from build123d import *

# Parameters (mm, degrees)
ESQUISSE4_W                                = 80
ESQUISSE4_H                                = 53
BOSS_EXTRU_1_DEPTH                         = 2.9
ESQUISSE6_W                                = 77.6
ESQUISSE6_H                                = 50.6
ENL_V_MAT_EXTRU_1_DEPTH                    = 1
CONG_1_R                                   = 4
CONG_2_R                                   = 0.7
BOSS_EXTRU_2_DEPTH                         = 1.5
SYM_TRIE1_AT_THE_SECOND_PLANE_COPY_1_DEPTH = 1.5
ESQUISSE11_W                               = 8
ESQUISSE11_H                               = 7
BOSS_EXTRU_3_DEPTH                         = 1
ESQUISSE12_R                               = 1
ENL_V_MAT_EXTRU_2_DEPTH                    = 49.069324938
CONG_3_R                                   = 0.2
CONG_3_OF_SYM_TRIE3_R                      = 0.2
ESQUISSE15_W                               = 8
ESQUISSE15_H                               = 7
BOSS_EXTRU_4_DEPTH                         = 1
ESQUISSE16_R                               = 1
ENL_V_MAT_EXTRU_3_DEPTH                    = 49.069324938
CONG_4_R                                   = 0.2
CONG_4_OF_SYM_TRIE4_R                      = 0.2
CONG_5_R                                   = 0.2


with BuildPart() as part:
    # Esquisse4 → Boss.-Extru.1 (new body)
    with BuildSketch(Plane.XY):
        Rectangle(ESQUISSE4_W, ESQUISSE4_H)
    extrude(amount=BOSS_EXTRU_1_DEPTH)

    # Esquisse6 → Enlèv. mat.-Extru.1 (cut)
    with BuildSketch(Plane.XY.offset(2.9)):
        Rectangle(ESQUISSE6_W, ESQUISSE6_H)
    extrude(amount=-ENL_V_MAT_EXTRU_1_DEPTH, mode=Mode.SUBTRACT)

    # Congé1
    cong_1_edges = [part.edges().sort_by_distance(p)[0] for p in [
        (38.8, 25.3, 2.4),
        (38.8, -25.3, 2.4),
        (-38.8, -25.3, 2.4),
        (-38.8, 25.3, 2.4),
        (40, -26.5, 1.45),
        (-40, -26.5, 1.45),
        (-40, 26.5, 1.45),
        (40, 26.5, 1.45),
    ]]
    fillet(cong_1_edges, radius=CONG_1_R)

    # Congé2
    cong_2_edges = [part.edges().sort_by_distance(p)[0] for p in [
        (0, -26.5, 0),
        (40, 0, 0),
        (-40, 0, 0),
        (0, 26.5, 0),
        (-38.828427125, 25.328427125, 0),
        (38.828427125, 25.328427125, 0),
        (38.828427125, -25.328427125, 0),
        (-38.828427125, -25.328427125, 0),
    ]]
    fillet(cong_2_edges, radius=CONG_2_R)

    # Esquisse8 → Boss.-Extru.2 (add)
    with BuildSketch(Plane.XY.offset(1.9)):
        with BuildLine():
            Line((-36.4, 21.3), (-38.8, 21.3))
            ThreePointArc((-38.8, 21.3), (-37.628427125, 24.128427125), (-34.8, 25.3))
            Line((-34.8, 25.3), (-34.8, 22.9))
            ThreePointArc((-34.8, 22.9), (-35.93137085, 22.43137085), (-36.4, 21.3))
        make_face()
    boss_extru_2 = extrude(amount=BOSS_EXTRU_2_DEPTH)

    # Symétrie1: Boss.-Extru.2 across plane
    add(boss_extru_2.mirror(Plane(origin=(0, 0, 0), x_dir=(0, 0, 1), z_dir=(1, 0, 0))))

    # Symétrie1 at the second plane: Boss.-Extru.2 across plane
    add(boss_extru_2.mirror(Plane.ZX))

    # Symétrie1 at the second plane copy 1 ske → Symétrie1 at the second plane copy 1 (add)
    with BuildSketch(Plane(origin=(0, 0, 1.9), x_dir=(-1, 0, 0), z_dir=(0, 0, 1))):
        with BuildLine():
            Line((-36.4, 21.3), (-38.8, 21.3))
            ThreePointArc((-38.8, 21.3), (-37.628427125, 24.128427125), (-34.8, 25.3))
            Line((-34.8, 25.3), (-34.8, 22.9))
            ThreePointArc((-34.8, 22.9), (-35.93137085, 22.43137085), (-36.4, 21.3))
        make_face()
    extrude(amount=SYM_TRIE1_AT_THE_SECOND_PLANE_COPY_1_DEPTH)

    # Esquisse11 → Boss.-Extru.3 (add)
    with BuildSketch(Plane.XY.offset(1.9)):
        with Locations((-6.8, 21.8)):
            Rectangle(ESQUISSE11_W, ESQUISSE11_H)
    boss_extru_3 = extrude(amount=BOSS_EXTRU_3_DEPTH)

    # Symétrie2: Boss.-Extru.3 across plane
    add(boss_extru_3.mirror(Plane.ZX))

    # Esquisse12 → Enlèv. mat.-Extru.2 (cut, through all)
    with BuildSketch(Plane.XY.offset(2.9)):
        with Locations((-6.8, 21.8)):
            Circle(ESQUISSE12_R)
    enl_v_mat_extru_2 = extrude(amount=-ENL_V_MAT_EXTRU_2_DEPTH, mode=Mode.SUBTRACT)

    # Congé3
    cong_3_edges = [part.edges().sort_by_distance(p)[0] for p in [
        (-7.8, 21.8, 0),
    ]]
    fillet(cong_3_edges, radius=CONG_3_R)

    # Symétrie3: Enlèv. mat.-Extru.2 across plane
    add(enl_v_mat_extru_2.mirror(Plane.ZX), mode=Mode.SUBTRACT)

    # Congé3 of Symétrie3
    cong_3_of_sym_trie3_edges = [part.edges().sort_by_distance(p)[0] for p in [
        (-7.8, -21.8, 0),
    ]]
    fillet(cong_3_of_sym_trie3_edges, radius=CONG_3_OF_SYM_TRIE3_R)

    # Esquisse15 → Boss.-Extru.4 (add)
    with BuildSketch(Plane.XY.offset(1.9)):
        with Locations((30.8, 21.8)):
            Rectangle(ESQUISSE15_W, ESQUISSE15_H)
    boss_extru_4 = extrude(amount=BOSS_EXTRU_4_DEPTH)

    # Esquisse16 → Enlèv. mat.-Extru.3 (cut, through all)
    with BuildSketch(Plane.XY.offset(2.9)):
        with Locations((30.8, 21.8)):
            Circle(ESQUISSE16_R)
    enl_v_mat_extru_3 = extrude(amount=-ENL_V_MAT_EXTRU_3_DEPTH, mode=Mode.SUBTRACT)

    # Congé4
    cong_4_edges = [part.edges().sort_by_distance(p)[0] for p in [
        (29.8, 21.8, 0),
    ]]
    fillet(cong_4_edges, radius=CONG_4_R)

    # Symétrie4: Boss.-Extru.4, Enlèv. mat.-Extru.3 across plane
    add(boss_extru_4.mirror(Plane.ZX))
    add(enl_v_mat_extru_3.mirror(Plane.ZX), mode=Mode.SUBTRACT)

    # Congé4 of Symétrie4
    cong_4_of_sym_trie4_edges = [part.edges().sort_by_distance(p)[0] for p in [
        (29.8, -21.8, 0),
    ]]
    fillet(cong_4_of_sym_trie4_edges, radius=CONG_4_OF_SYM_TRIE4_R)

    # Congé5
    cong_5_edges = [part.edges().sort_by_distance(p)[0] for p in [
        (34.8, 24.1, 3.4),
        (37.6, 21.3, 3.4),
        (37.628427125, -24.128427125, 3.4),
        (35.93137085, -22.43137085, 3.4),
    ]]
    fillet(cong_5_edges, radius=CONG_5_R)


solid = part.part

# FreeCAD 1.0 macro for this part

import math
import FreeCAD as App
import Part
import Sketcher
from FreeCAD import Vector
Q = App.Units.Quantity


def edges_at(feature, points):
    """Names of the edges that pass closest to the given points."""
    edges = feature.Shape.Edges
    near = lambda p: min(range(len(edges)), key=lambda i: edges[i].distToShape(Part.Vertex(*p))[0])
    return sorted({f"Edge{near(p) + 1}" for p in points})

doc = App.newDocument("Part")
body = doc.addObject("PartDesign::Body", "Body")

sketch1 = body.newObject("Sketcher::SketchObject", "Sketch")
sketch1.AttachmentSupport = (doc.getObject("XY_Plane"), [""])
sketch1.MapMode = "FlatFace"
sketch1.addGeometry(Part.LineSegment(Vector(-40, 26, 0), Vector(-40, -26, 0)), False)
sketch1.addGeometry(Part.LineSegment(Vector(-40, -26, 0), Vector(40, -26, 0)), False)
sketch1.addGeometry(Part.LineSegment(Vector(40, -26, 0), Vector(40, 26, 0)), False)
sketch1.addGeometry(Part.LineSegment(Vector(40, 26, 0), Vector(-40, 26, 0)), False)
sketch1.addConstraint(Sketcher.Constraint("Coincident", 0, 2, 1, 1))
sketch1.addConstraint(Sketcher.Constraint("Coincident", 1, 2, 2, 1))
sketch1.addConstraint(Sketcher.Constraint("Coincident", 2, 2, 3, 1))
sketch1.addConstraint(Sketcher.Constraint("Coincident", 3, 2, 0, 1))
sketch1.addConstraint(Sketcher.Constraint("Vertical", 0))
sketch1.addConstraint(Sketcher.Constraint("Horizontal", 1))
sketch1.addConstraint(Sketcher.Constraint("Vertical", 2))
sketch1.addConstraint(Sketcher.Constraint("Horizontal", 3))
sketch1.addConstraint(Sketcher.Constraint("Symmetric", 0, 2, 2, 2, -1, 1))
sketch1.addConstraint(Sketcher.Constraint("DistanceX", 1, 1, 1, 2, Q("80 mm")))
sketch1.addConstraint(Sketcher.Constraint("DistanceY", 0, 2, 0, 1, Q("53 mm")))
pad1 = body.newObject("PartDesign::Pad", "Pad")
pad1.Profile = sketch1
pad1.Length = 2.9

sketch2 = body.newObject("Sketcher::SketchObject", "Sketch001")
sketch2.AttachmentSupport = (doc.getObject("XY_Plane"), [""])
sketch2.MapMode = "FlatFace"
sketch2.AttachmentOffset = App.Placement(Vector(0, 0, 2.9), App.Rotation())
sketch2.addGeometry(Part.LineSegment(Vector(-39, 25, 0), Vector(-39, -25, 0)), False)
sketch2.addGeometry(Part.LineSegment(Vector(-39, -25, 0), Vector(39, -25, 0)), False)
sketch2.addGeometry(Part.LineSegment(Vector(39, -25, 0), Vector(39, 25, 0)), False)
sketch2.addGeometry(Part.LineSegment(Vector(39, 25, 0), Vector(-39, 25, 0)), False)
sketch2.addConstraint(Sketcher.Constraint("Coincident", 0, 2, 1, 1))
sketch2.addConstraint(Sketcher.Constraint("Coincident", 1, 2, 2, 1))
sketch2.addConstraint(Sketcher.Constraint("Coincident", 2, 2, 3, 1))
sketch2.addConstraint(Sketcher.Constraint("Coincident", 3, 2, 0, 1))
sketch2.addConstraint(Sketcher.Constraint("Vertical", 0))
sketch2.addConstraint(Sketcher.Constraint("Horizontal", 1))
sketch2.addConstraint(Sketcher.Constraint("Vertical", 2))
sketch2.addConstraint(Sketcher.Constraint("Horizontal", 3))
sketch2.addConstraint(Sketcher.Constraint("Symmetric", 0, 2, 2, 2, -1, 1))
sketch2.addConstraint(Sketcher.Constraint("DistanceX", 1, 1, 1, 2, Q("77.6 mm")))
sketch2.addConstraint(Sketcher.Constraint("DistanceY", 0, 2, 0, 1, Q("50.6 mm")))
pocket1 = body.newObject("PartDesign::Pocket", "Pocket")
pocket1.Profile = sketch2
pocket1.Length = 1
doc.recompute()

fillet = body.newObject("PartDesign::Fillet", "Fillet")
fillet.Base = (pocket1, edges_at(pocket1, [
    (38.8, 25.3, 2.4),
    (38.8, -25.3, 2.4),
    (-38.8, -25.3, 2.4),
    (-38.8, 25.3, 2.4),
    (40, -26.5, 1.45),
    (-40, -26.5, 1.45),
    (-40, 26.5, 1.45),
    (40, 26.5, 1.45),
]))
fillet.Radius = 4
doc.recompute()

fillet2 = body.newObject("PartDesign::Fillet", "Fillet001")
fillet2.Base = (fillet, edges_at(fillet, [
    (0, -26.5, 0),
    (40, 0, 0),
    (-40, 0, 0),
    (0, 26.5, 0),
    (-38.828, 25.328, 0),
    (38.828, 25.328, 0),
    (38.828, -25.328, 0),
    (-38.828, -25.328, 0),
]))
fillet2.Radius = 0.7

sketch3 = body.newObject("Sketcher::SketchObject", "Sketch002")
sketch3.AttachmentSupport = (doc.getObject("XY_Plane"), [""])
sketch3.MapMode = "FlatFace"
sketch3.AttachmentOffset = App.Placement(Vector(0, 0, 1.9), App.Rotation())
sketch3.addGeometry(Part.LineSegment(Vector(-38.8, 21.3, 0), Vector(-36.4, 21.3, 0)), False)
sketch3.addGeometry(Part.ArcOfCircle(Part.Circle(Vector(-34.8, 21.3, 0), Vector(0, 0, 1), 1.6), math.radians(90), math.radians(180)), False)
sketch3.addGeometry(Part.LineSegment(Vector(-34.8, 22.9, 0), Vector(-34.8, 25.3, 0)), False)
sketch3.addGeometry(Part.ArcOfCircle(Part.Circle(Vector(-34.8, 21.3, 0), Vector(0, 0, 1), 4), math.radians(90), math.radians(180)), False)
sketch3.addConstraint(Sketcher.Constraint("Coincident", 0, 2, 1, 2))
sketch3.addConstraint(Sketcher.Constraint("Coincident", 1, 1, 2, 1))
sketch3.addConstraint(Sketcher.Constraint("Coincident", 2, 2, 3, 1))
sketch3.addConstraint(Sketcher.Constraint("Coincident", 3, 2, 0, 1))
sketch3.addConstraint(Sketcher.Constraint("Horizontal", 0))
sketch3.addConstraint(Sketcher.Constraint("Vertical", 2))
sketch3.addConstraint(Sketcher.Constraint("Coincident", 3, 3, 1, 3))
sketch3.addConstraint(Sketcher.Constraint("Horizontal", 3, 3, 0, 2))
sketch3.addConstraint(Sketcher.Constraint("Vertical", 3, 3, 1, 1))
sketch3.addConstraint(Sketcher.Constraint("Radius", 3, Q("4 mm")))
sketch3.addConstraint(Sketcher.Constraint("Radius", 1, Q("1.6 mm")))
sketch3.addConstraint(Sketcher.Constraint("DistanceX", 1, 3, -1, 1, Q("34.8 mm")))
sketch3.addConstraint(Sketcher.Constraint("DistanceY", -1, 1, 1, 3, Q("21.3 mm")))
pad2 = body.newObject("PartDesign::Pad", "Pad001")
pad2.Profile = sketch3
pad2.Length = 1.5
doc.recompute()

mirrored = body.newObject("PartDesign::Mirrored", "Mirrored")
mirrored.Originals = [pad2]
mirrored.MirrorPlane = (doc.getObject("YZ_Plane"), [""])
body.Tip = mirrored
doc.recompute()

mirrored2 = body.newObject("PartDesign::Mirrored", "Mirrored001")
mirrored2.Originals = [pad2]
mirrored2.MirrorPlane = (doc.getObject("XZ_Plane"), [""])
body.Tip = mirrored2

sketch4 = body.newObject("Sketcher::SketchObject", "Sketch003")
sketch4.AttachmentSupport = (doc.getObject("XY_Plane"), [""])
sketch4.MapMode = "FlatFace"
sketch4.AttachmentOffset = App.Placement(Vector(0, 0, 1.9), App.Rotation())
sketch4.addGeometry(Part.LineSegment(Vector(38.8, -21.3, 0), Vector(36.4, -21.3, 0)), False)
sketch4.addGeometry(Part.ArcOfCircle(Part.Circle(Vector(34.8, -21.3, 0), Vector(0, 0, 1), 1.6), math.radians(-90), math.radians(0)), False)
sketch4.addGeometry(Part.LineSegment(Vector(34.8, -22.9, 0), Vector(34.8, -25.3, 0)), False)
sketch4.addGeometry(Part.ArcOfCircle(Part.Circle(Vector(34.8, -21.3, 0), Vector(0, 0, 1), 4), math.radians(-90), math.radians(0)), False)
sketch4.addConstraint(Sketcher.Constraint("Coincident", 0, 2, 1, 2))
sketch4.addConstraint(Sketcher.Constraint("Coincident", 1, 1, 2, 1))
sketch4.addConstraint(Sketcher.Constraint("Coincident", 2, 2, 3, 1))
sketch4.addConstraint(Sketcher.Constraint("Coincident", 3, 2, 0, 1))
sketch4.addConstraint(Sketcher.Constraint("Horizontal", 0))
sketch4.addConstraint(Sketcher.Constraint("Vertical", 2))
sketch4.addConstraint(Sketcher.Constraint("Coincident", 3, 3, 1, 3))
sketch4.addConstraint(Sketcher.Constraint("Horizontal", 3, 3, 0, 2))
sketch4.addConstraint(Sketcher.Constraint("Vertical", 3, 3, 1, 1))
sketch4.addConstraint(Sketcher.Constraint("Radius", 3, Q("4 mm")))
sketch4.addConstraint(Sketcher.Constraint("Radius", 1, Q("1.6 mm")))
sketch4.addConstraint(Sketcher.Constraint("DistanceX", -1, 1, 1, 3, Q("34.8 mm")))
sketch4.addConstraint(Sketcher.Constraint("DistanceY", 1, 3, -1, 1, Q("21.3 mm")))
pad3 = body.newObject("PartDesign::Pad", "Pad002")
pad3.Profile = sketch4
pad3.Length = 1.5

sketch5 = body.newObject("Sketcher::SketchObject", "Sketch004")
sketch5.AttachmentSupport = (doc.getObject("XY_Plane"), [""])
sketch5.MapMode = "FlatFace"
sketch5.AttachmentOffset = App.Placement(Vector(0, 0, 1.9), App.Rotation())
sketch5.addGeometry(Part.LineSegment(Vector(-11, 25, 0), Vector(-11, 18, 0)), False)
sketch5.addGeometry(Part.LineSegment(Vector(-11, 18, 0), Vector(-3, 18, 0)), False)
sketch5.addGeometry(Part.LineSegment(Vector(-3, 18, 0), Vector(-3, 25, 0)), False)
sketch5.addGeometry(Part.LineSegment(Vector(-3, 25, 0), Vector(-11, 25, 0)), False)
sketch5.addConstraint(Sketcher.Constraint("Coincident", 0, 2, 1, 1))
sketch5.addConstraint(Sketcher.Constraint("Coincident", 1, 2, 2, 1))
sketch5.addConstraint(Sketcher.Constraint("Coincident", 2, 2, 3, 1))
sketch5.addConstraint(Sketcher.Constraint("Coincident", 3, 2, 0, 1))
sketch5.addConstraint(Sketcher.Constraint("Vertical", 0))
sketch5.addConstraint(Sketcher.Constraint("Horizontal", 1))
sketch5.addConstraint(Sketcher.Constraint("Vertical", 2))
sketch5.addConstraint(Sketcher.Constraint("Horizontal", 3))
sketch5.addConstraint(Sketcher.Constraint("DistanceX", 1, 1, 1, 2, Q("8 mm")))
sketch5.addConstraint(Sketcher.Constraint("DistanceY", 0, 2, 0, 1, Q("7 mm")))
sketch5.addConstraint(Sketcher.Constraint("DistanceX", 0, 2, -1, 1, Q("10.8 mm")))
sketch5.addConstraint(Sketcher.Constraint("DistanceY", -1, 1, 0, 2, Q("18.3 mm")))
pad4 = body.newObject("PartDesign::Pad", "Pad003")
pad4.Profile = sketch5
pad4.Length = 1
doc.recompute()

mirrored3 = body.newObject("PartDesign::Mirrored", "Mirrored002")
mirrored3.Originals = [pad4]
mirrored3.MirrorPlane = (doc.getObject("XZ_Plane"), [""])
body.Tip = mirrored3

sketch6 = body.newObject("Sketcher::SketchObject", "Sketch005")
sketch6.AttachmentSupport = (doc.getObject("XY_Plane"), [""])
sketch6.MapMode = "FlatFace"
sketch6.AttachmentOffset = App.Placement(Vector(0, 0, 2.9), App.Rotation())
sketch6.addGeometry(Part.Circle(Vector(-6.8, 21.8, 0), Vector(0, 0, 1), 1), False)
sketch6.addConstraint(Sketcher.Constraint("Diameter", 0, Q("2 mm")))
sketch6.addConstraint(Sketcher.Constraint("DistanceX", 0, 3, -1, 1, Q("6.8 mm")))
sketch6.addConstraint(Sketcher.Constraint("DistanceY", -1, 1, 0, 3, Q("21.8 mm")))
pocket2 = body.newObject("PartDesign::Pocket", "Pocket001")
pocket2.Profile = sketch6
pocket2.Type = "ThroughAll"
doc.recompute()

fillet3 = body.newObject("PartDesign::Fillet", "Fillet002")
fillet3.Base = (pocket2, edges_at(pocket2, [(-7.8, 21.8, 0)]))
fillet3.Radius = 0.2
doc.recompute()

mirrored4 = body.newObject("PartDesign::Mirrored", "Mirrored003")
mirrored4.Originals = [pocket2]
mirrored4.MirrorPlane = (doc.getObject("XZ_Plane"), [""])
body.Tip = mirrored4
doc.recompute()

fillet4 = body.newObject("PartDesign::Fillet", "Fillet003")
fillet4.Base = (mirrored4, edges_at(mirrored4, [(-7.8, -21.8, 0)]))
fillet4.Radius = 0.2

sketch7 = body.newObject("Sketcher::SketchObject", "Sketch006")
sketch7.AttachmentSupport = (doc.getObject("XY_Plane"), [""])
sketch7.MapMode = "FlatFace"
sketch7.AttachmentOffset = App.Placement(Vector(0, 0, 1.9), App.Rotation())
sketch7.addGeometry(Part.LineSegment(Vector(27, 25, 0), Vector(27, 18, 0)), False)
sketch7.addGeometry(Part.LineSegment(Vector(27, 18, 0), Vector(35, 18, 0)), False)
sketch7.addGeometry(Part.LineSegment(Vector(35, 18, 0), Vector(35, 25, 0)), False)
sketch7.addGeometry(Part.LineSegment(Vector(35, 25, 0), Vector(27, 25, 0)), False)
sketch7.addConstraint(Sketcher.Constraint("Coincident", 0, 2, 1, 1))
sketch7.addConstraint(Sketcher.Constraint("Coincident", 1, 2, 2, 1))
sketch7.addConstraint(Sketcher.Constraint("Coincident", 2, 2, 3, 1))
sketch7.addConstraint(Sketcher.Constraint("Coincident", 3, 2, 0, 1))
sketch7.addConstraint(Sketcher.Constraint("Vertical", 0))
sketch7.addConstraint(Sketcher.Constraint("Horizontal", 1))
sketch7.addConstraint(Sketcher.Constraint("Vertical", 2))
sketch7.addConstraint(Sketcher.Constraint("Horizontal", 3))
sketch7.addConstraint(Sketcher.Constraint("DistanceX", 1, 1, 1, 2, Q("8 mm")))
sketch7.addConstraint(Sketcher.Constraint("DistanceY", 0, 2, 0, 1, Q("7 mm")))
sketch7.addConstraint(Sketcher.Constraint("DistanceX", -1, 1, 0, 2, Q("26.8 mm")))
sketch7.addConstraint(Sketcher.Constraint("DistanceY", -1, 1, 0, 2, Q("18.3 mm")))
pad5 = body.newObject("PartDesign::Pad", "Pad004")
pad5.Profile = sketch7
pad5.Length = 1

sketch8 = body.newObject("Sketcher::SketchObject", "Sketch007")
sketch8.AttachmentSupport = (doc.getObject("XY_Plane"), [""])
sketch8.MapMode = "FlatFace"
sketch8.AttachmentOffset = App.Placement(Vector(0, 0, 2.9), App.Rotation())
sketch8.addGeometry(Part.Circle(Vector(30.8, 21.8, 0), Vector(0, 0, 1), 1), False)
sketch8.addConstraint(Sketcher.Constraint("Diameter", 0, Q("2 mm")))
sketch8.addConstraint(Sketcher.Constraint("DistanceX", -1, 1, 0, 3, Q("30.8 mm")))
sketch8.addConstraint(Sketcher.Constraint("DistanceY", -1, 1, 0, 3, Q("21.8 mm")))
pocket3 = body.newObject("PartDesign::Pocket", "Pocket002")
pocket3.Profile = sketch8
pocket3.Type = "ThroughAll"
doc.recompute()

fillet5 = body.newObject("PartDesign::Fillet", "Fillet004")
fillet5.Base = (pocket3, edges_at(pocket3, [(29.8, 21.8, 0)]))
fillet5.Radius = 0.2
doc.recompute()

mirrored5 = body.newObject("PartDesign::Mirrored", "Mirrored004")
mirrored5.Originals = [pad5, pocket3]
mirrored5.MirrorPlane = (doc.getObject("XZ_Plane"), [""])
body.Tip = mirrored5
doc.recompute()

fillet6 = body.newObject("PartDesign::Fillet", "Fillet005")
fillet6.Base = (mirrored5, edges_at(mirrored5, [(29.8, -21.8, 0)]))
fillet6.Radius = 0.2
doc.recompute()

fillet7 = body.newObject("PartDesign::Fillet", "Fillet006")
fillet7.Base = (fillet6, edges_at(fillet6, [
    (34.8, 24.1, 3.4),
    (37.6, 21.3, 3.4),
    (37.628, -24.128, 3.4),
    (35.931, -22.431, 3.4),
]))
fillet7.Radius = 0.2

doc.recompute()
